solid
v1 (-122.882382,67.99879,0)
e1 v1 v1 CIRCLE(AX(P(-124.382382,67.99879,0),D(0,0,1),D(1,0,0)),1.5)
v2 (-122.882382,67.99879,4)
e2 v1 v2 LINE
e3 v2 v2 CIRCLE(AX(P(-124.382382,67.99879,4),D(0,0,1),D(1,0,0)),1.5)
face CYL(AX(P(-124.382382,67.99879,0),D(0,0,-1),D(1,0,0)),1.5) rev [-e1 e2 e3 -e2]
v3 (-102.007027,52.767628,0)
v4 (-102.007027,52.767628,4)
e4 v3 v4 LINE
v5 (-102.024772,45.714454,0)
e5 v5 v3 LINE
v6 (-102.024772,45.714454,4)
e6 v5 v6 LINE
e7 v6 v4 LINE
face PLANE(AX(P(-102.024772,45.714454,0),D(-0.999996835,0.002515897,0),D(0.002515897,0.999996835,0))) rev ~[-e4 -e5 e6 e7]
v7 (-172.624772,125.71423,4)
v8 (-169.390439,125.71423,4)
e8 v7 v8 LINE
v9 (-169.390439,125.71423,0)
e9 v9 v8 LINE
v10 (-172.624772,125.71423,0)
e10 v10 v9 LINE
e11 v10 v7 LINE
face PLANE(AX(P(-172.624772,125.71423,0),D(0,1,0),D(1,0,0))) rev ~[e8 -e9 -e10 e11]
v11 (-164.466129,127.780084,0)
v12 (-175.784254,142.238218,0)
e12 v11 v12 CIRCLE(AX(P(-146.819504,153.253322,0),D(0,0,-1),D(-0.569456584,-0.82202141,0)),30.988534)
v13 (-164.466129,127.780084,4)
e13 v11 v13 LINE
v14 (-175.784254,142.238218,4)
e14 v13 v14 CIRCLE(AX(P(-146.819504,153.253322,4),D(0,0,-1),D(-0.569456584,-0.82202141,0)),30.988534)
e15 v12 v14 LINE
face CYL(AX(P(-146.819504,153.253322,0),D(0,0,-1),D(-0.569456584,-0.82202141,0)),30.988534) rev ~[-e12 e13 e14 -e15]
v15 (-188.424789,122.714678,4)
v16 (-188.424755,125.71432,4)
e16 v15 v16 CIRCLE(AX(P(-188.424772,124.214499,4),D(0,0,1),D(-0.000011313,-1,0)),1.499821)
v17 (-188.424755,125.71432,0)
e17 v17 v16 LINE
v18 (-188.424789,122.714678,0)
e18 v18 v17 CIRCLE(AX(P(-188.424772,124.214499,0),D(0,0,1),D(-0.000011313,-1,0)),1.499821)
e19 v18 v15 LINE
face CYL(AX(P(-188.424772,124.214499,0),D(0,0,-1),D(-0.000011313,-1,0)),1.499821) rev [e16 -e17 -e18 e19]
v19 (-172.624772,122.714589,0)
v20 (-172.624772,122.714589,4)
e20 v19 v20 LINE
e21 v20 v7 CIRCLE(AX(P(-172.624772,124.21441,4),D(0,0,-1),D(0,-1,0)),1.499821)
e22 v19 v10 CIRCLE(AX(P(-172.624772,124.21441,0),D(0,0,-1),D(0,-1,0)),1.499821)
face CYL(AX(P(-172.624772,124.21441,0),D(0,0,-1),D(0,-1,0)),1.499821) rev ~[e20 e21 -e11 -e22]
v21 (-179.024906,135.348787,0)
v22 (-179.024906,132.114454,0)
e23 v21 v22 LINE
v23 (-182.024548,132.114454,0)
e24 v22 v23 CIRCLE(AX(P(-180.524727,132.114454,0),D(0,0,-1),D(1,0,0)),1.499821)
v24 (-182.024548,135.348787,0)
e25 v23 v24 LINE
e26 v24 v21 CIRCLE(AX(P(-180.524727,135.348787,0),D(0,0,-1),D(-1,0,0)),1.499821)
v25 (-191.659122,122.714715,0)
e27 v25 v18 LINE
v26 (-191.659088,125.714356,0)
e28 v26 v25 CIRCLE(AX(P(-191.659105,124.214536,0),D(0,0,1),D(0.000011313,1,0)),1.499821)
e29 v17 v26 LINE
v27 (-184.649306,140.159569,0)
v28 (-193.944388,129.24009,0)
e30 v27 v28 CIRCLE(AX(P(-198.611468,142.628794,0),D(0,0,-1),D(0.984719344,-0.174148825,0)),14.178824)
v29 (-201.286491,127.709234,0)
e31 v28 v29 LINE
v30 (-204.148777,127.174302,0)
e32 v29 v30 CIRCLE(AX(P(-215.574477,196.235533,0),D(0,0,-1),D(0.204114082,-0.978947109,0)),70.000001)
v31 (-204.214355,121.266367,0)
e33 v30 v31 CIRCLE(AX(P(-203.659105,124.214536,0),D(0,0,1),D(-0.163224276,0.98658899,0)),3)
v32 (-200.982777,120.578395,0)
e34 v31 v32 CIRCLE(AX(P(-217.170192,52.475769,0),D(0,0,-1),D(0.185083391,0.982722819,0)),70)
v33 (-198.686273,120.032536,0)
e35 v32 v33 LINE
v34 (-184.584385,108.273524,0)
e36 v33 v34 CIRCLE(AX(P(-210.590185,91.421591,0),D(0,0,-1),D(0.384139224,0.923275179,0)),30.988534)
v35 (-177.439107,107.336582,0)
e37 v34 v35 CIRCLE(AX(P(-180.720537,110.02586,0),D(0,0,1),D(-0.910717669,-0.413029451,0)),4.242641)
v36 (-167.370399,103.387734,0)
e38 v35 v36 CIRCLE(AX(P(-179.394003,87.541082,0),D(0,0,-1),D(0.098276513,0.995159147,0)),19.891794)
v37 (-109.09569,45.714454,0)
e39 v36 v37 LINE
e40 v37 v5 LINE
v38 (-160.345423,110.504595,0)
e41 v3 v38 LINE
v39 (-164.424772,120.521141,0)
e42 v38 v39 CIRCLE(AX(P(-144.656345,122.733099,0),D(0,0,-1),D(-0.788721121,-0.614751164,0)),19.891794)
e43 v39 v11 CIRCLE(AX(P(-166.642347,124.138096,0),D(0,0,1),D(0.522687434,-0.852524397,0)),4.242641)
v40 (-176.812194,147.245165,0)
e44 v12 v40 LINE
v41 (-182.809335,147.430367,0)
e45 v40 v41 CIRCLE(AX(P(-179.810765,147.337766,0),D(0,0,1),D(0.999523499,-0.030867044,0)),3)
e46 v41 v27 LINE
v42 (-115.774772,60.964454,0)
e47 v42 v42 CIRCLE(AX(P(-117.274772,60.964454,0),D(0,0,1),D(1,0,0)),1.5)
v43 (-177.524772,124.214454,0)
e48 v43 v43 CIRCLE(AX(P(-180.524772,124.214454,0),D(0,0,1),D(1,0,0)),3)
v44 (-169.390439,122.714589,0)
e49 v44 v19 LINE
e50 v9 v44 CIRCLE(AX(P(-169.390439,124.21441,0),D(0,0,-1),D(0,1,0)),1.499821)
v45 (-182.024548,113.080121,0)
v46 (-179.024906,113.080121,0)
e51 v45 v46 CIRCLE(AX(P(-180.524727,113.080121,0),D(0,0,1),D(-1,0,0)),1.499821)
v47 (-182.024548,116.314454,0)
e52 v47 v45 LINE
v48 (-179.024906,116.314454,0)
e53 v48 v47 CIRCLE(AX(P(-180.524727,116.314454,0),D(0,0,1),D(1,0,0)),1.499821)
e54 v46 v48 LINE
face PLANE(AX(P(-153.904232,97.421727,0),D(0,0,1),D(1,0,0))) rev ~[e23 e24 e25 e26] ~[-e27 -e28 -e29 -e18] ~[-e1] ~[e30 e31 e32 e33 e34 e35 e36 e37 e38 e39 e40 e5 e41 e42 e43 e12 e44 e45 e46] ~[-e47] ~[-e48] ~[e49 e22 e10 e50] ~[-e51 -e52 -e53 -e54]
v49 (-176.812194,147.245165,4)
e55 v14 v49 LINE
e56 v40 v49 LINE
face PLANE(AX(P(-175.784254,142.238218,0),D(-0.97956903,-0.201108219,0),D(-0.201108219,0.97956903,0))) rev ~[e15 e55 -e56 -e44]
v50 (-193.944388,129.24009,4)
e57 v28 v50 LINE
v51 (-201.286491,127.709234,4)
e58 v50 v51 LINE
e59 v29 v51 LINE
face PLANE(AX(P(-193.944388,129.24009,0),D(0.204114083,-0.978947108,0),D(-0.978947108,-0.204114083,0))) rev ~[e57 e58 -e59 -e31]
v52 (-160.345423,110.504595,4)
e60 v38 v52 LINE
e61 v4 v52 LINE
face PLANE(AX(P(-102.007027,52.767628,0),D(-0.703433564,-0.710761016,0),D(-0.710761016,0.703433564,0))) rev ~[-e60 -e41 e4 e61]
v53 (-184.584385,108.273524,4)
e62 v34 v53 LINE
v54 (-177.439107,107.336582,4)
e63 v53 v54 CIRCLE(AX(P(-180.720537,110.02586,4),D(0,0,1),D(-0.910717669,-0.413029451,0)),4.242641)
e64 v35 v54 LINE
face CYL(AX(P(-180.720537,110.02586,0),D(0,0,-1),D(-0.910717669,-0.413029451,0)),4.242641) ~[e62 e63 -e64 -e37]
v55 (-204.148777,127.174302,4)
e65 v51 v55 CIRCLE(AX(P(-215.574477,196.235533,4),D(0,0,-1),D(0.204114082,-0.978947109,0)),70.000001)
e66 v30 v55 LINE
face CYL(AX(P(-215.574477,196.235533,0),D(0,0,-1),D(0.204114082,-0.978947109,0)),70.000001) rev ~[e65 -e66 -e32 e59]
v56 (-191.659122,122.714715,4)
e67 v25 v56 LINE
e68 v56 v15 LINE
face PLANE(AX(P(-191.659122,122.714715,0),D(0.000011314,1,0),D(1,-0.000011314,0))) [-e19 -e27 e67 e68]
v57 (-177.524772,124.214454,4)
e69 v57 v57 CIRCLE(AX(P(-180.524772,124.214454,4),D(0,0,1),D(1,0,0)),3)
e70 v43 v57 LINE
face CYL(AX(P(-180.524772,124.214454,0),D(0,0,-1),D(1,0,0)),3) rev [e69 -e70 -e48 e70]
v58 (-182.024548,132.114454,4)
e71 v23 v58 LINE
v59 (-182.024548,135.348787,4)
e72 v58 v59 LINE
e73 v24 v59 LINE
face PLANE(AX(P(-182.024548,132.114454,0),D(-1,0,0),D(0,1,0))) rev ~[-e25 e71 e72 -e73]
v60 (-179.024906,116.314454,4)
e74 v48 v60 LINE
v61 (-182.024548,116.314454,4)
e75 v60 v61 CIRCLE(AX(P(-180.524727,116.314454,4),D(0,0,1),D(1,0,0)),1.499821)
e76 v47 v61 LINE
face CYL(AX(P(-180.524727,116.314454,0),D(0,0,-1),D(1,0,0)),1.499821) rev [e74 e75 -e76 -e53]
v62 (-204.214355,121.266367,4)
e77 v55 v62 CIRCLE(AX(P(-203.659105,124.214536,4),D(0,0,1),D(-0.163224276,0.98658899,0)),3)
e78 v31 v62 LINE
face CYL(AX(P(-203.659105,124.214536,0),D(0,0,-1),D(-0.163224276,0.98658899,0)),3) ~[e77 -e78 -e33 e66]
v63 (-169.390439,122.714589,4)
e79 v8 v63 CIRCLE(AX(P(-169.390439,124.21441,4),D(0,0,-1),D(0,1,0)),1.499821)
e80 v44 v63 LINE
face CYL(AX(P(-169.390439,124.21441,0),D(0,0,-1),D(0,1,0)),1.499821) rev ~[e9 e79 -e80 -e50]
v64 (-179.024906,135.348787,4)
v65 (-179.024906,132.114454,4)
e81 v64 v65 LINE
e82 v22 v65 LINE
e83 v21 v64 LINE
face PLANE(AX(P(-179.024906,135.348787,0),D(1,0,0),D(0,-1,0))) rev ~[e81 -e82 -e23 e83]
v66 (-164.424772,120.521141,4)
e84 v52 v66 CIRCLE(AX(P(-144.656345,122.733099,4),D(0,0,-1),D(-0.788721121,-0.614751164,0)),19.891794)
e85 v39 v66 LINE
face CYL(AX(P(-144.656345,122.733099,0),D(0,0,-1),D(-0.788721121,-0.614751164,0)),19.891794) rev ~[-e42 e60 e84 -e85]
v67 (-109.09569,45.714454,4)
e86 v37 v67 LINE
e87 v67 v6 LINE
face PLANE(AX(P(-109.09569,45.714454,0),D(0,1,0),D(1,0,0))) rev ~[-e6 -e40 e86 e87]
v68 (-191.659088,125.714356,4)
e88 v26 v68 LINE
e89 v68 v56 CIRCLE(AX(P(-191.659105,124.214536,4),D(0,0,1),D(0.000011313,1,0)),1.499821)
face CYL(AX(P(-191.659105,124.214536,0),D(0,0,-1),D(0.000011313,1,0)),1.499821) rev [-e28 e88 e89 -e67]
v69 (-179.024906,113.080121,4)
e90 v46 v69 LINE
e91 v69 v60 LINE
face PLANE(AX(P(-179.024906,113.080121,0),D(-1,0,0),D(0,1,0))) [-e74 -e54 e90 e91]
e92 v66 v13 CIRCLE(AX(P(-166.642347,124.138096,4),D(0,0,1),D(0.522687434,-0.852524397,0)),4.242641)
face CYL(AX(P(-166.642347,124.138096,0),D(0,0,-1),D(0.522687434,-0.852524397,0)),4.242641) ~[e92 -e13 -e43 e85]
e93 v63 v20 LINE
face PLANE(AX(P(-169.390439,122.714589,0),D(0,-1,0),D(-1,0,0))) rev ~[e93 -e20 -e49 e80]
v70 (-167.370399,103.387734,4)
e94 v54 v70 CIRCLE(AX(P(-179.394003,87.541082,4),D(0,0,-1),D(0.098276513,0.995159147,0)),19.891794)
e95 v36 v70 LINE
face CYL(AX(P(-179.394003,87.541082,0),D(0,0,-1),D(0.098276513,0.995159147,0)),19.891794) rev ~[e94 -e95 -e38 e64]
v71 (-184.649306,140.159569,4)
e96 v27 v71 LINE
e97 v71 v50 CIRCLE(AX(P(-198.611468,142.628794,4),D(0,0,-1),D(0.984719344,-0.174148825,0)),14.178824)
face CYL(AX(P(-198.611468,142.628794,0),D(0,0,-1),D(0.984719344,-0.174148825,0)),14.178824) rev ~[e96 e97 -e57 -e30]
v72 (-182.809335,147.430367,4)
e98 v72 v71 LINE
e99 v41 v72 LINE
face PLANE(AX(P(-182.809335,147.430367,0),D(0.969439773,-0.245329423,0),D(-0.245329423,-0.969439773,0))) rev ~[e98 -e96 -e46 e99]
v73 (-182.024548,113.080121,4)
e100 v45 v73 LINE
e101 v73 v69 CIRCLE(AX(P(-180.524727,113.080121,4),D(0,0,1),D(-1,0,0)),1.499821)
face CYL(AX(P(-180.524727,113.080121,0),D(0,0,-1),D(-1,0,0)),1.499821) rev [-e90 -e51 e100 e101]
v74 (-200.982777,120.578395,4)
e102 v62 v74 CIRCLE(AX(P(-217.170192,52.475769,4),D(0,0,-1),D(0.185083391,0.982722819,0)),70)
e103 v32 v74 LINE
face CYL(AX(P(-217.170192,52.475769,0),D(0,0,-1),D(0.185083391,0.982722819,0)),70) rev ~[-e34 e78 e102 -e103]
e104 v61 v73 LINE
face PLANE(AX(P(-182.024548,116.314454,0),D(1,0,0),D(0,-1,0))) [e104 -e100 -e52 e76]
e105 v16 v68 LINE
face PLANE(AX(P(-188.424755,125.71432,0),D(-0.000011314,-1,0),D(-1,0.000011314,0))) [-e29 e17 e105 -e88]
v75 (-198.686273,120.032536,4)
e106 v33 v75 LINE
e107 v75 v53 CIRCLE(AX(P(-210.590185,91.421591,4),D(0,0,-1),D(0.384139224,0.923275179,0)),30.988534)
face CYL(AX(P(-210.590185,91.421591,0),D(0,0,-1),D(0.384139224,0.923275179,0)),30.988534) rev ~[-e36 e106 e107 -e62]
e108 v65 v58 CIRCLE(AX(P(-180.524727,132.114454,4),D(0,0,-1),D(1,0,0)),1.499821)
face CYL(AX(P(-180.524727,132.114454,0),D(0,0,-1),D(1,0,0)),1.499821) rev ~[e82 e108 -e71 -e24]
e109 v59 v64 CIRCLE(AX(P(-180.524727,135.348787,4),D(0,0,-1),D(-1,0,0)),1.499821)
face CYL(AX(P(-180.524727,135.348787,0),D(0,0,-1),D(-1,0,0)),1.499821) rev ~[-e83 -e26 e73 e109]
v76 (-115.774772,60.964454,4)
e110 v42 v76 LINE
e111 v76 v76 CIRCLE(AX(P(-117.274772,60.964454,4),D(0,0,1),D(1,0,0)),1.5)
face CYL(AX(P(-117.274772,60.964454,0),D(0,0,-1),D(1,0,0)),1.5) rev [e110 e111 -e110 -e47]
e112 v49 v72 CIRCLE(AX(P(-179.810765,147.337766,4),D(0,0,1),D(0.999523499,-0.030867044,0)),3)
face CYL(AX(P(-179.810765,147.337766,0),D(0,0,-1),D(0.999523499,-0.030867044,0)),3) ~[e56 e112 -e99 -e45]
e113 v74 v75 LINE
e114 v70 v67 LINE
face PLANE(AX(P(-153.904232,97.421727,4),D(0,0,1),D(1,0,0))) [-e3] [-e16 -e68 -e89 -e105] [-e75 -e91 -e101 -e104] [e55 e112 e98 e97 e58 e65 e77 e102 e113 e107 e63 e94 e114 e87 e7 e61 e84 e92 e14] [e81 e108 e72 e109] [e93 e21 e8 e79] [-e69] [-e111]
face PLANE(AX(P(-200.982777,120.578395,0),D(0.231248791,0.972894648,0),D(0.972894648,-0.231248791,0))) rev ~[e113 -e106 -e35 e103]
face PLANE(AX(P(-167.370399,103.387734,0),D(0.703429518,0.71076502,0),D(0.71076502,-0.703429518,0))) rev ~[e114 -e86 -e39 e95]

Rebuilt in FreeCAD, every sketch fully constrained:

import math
import FreeCAD as App
import Part
import Sketcher

doc = App.newDocument("Part")
params = doc.addObject("Spreadsheet::Sheet", "Params")
for row, (alias, value) in enumerate([
    ("sketch1_diameter", "3 mm"),
    ("sketch1_diameter2", "6 mm"),
    ("sketch1_radius", "70.000001 mm"),
    ("sketch1_length", "7.5 mm"),
    ("pad1_length", "4 mm"),
], start=1):
    params.set(f"A{row}", alias)
    params.set(f"B{row}", "=" + value)
    params.setAlias(f"B{row}", alias)

body = doc.addObject("PartDesign::Body", "Body")

sketch1 = body.newObject("Sketcher::SketchObject", "Sketch")
sketch1.AttachmentSupport = (doc.getObject("XY_Plane"), [""])
sketch1.MapMode = "FlatFace"
sketch1.addGeometry([
    Part.LineSegment(App.Vector(-201, 120.6, 0), App.Vector(-198.7, 120, 0)),
    Part.ArcOfCircle(Part.Circle(App.Vector(-210.6, 91.4, 0), App.Vector(0, 0, 1), 31), math.radians(33), math.radians(67)),
    Part.ArcOfCircle(Part.Circle(App.Vector(-180.7, 110, 0), App.Vector(0, 0, 1), 4.2), math.radians(-156), math.radians(-39)),
    Part.ArcOfCircle(Part.Circle(App.Vector(-179.4, 87.5, 0), App.Vector(0, 0, 1), 19.9), math.radians(53), math.radians(84)),
    Part.LineSegment(App.Vector(-167.4, 103.4, 0), App.Vector(-109.1, 45.7, 0)),
    Part.LineSegment(App.Vector(-109.1, 45.7, 0), App.Vector(-102, 45.7, 0)),
    Part.LineSegment(App.Vector(-102, 45.7, 0), App.Vector(-102, 52.8, 0)),
    Part.LineSegment(App.Vector(-102, 52.8, 0), App.Vector(-160.3, 110.5, 0)),
    Part.ArcOfCircle(Part.Circle(App.Vector(-144.7, 122.7, 0), App.Vector(0, 0, 1), 19.9), math.radians(-174), math.radians(-142)),
    Part.ArcOfCircle(Part.Circle(App.Vector(-166.6, 124.1, 0), App.Vector(0, 0, 1), 4.2), math.radians(-58), math.radians(59)),
    Part.ArcOfCircle(Part.Circle(App.Vector(-146.8, 153.3, 0), App.Vector(0, 0, 1), 31), math.radians(-159), math.radians(-125)),
    Part.LineSegment(App.Vector(-175.8, 142.2, 0), App.Vector(-176.8, 147.2, 0)),
    Part.ArcOfCircle(Part.Circle(App.Vector(-179.8, 147.3, 0), App.Vector(0, 0, 1), 3), math.radians(-2), math.radians(178)),
    Part.LineSegment(App.Vector(-182.8, 147.4, 0), App.Vector(-184.6, 140.2, 0)),
    Part.ArcOfCircle(Part.Circle(App.Vector(-198.6, 142.6, 0), App.Vector(0, 0, 1), 14.2), math.radians(-71), math.radians(-10)),
    Part.LineSegment(App.Vector(-193.9, 129.2, 0), App.Vector(-201.3, 127.7, 0)),
    Part.ArcOfCircle(Part.Circle(App.Vector(-215.6, 196.2, 0), App.Vector(0, 0, 1), 70), math.radians(-80.61), math.radians(-78.22)),
    Part.ArcOfCircle(Part.Circle(App.Vector(-203.7, 124.2, 0), App.Vector(0, 0, 1), 3), math.radians(99), math.radians(259)),
    Part.ArcOfCircle(Part.Circle(App.Vector(-217.2, 52.5, 0), App.Vector(0, 0, 1), 70), math.radians(76.63), math.radians(79.33)),
    Part.Circle(App.Vector(-117.3, 61, 0), App.Vector(0, 0, 1), 1.5),
    Part.Circle(App.Vector(-124.4, 68, 0), App.Vector(0, 0, 1), 1.5),
    Part.LineSegment(App.Vector(-182, 113.1, 0), App.Vector(-182, 116.3, 0)),
    Part.ArcOfCircle(Part.Circle(App.Vector(-180.5, 116.3, 0), App.Vector(0, 0, 1), 1.5), math.radians(0), math.radians(180)),
    Part.LineSegment(App.Vector(-179, 116.3, 0), App.Vector(-179, 113.1, 0)),
    Part.ArcOfCircle(Part.Circle(App.Vector(-180.5, 113.1, 0), App.Vector(0, 0, 1), 1.5), math.radians(180), math.radians(360)),
    Part.LineSegment(App.Vector(-191.7, 125.7, 0), App.Vector(-188.4, 125.7, 0)),
    Part.ArcOfCircle(Part.Circle(App.Vector(-188.4, 124.2, 0), App.Vector(0, 0, 1), 1.5), math.radians(-90), math.radians(90)),
    Part.LineSegment(App.Vector(-188.4, 122.7, 0), App.Vector(-191.7, 122.7, 0)),
    Part.ArcOfCircle(Part.Circle(App.Vector(-191.7, 124.2, 0), App.Vector(0, 0, 1), 1.5), math.radians(90), math.radians(270)),
    Part.Circle(App.Vector(-180.5, 124.2, 0), App.Vector(0, 0, 1), 3),
    Part.ArcOfCircle(Part.Circle(App.Vector(-180.5, 132.1, 0), App.Vector(0, 0, 1), 1.5), math.radians(180), math.radians(360)),
    Part.LineSegment(App.Vector(-182, 132.1, 0), App.Vector(-182, 135.3, 0)),
    Part.ArcOfCircle(Part.Circle(App.Vector(-180.5, 135.3, 0), App.Vector(0, 0, 1), 1.5), math.radians(0), math.radians(180)),
    Part.LineSegment(App.Vector(-179, 135.3, 0), App.Vector(-179, 132.1, 0)),
    Part.ArcOfCircle(Part.Circle(App.Vector(-172.6, 124.2, 0), App.Vector(0, 0, 1), 1.5), math.radians(90), math.radians(270)),
    Part.LineSegment(App.Vector(-172.6, 125.7, 0), App.Vector(-169.4, 125.7, 0)),
    Part.ArcOfCircle(Part.Circle(App.Vector(-169.4, 124.2, 0), App.Vector(0, 0, 1), 1.5), math.radians(-90), math.radians(90)),
    Part.LineSegment(App.Vector(-169.4, 122.7, 0), App.Vector(-172.6, 122.7, 0)),
], False)
sketch1.addConstraint([
    Sketcher.Constraint("Coincident", 0, 2, 1, 2),
    Sketcher.Constraint("Coincident", 1, 1, 2, 1),
    Sketcher.Constraint("Coincident", 2, 2, 3, 2),
    Sketcher.Constraint("Coincident", 3, 1, 4, 1),
    Sketcher.Constraint("Coincident", 4, 2, 5, 1),
    Sketcher.Constraint("Coincident", 5, 2, 6, 1),
    Sketcher.Constraint("Coincident", 6, 2, 7, 1),
    Sketcher.Constraint("Coincident", 7, 2, 8, 2),
    Sketcher.Constraint("Coincident", 8, 1, 9, 1),
    Sketcher.Constraint("Coincident", 9, 2, 10, 2),
    Sketcher.Constraint("Coincident", 10, 1, 11, 1),
    Sketcher.Constraint("Coincident", 11, 2, 12, 1),
    Sketcher.Constraint("Coincident", 12, 2, 13, 1),
    Sketcher.Constraint("Coincident", 13, 2, 14, 2),
    Sketcher.Constraint("Coincident", 14, 1, 15, 1),
    Sketcher.Constraint("Tangent", 15, 2, 16, 2),
    Sketcher.Constraint("Tangent", 16, 1, 17, 1),
    Sketcher.Constraint("Tangent", 17, 2, 18, 2),
    Sketcher.Constraint("Tangent", 18, 1, 0, 1),
    Sketcher.Constraint("Tangent", 21, 2, 22, 2),
    Sketcher.Constraint("Tangent", 22, 1, 23, 1),
    Sketcher.Constraint("Tangent", 23, 2, 24, 2),
    Sketcher.Constraint("Tangent", 24, 1, 21, 1),
    Sketcher.Constraint("Tangent", 25, 2, 26, 2),
    Sketcher.Constraint("Tangent", 26, 1, 27, 1),
    Sketcher.Constraint("Tangent", 27, 2, 28, 2),
    Sketcher.Constraint("Tangent", 28, 1, 25, 1),
    Sketcher.Constraint("Tangent", 30, 1, 31, 1),
    Sketcher.Constraint("Tangent", 31, 2, 32, 2),
    Sketcher.Constraint("Tangent", 32, 1, 33, 1),
    Sketcher.Constraint("Tangent", 33, 2, 30, 2),
    Sketcher.Constraint("Tangent", 34, 1, 35, 1),
    Sketcher.Constraint("Tangent", 35, 2, 36, 2),
    Sketcher.Constraint("Tangent", 36, 1, 37, 1),
    Sketcher.Constraint("Tangent", 37, 2, 34, 2),
    Sketcher.Constraint("Horizontal", 5),
    Sketcher.Constraint("Vertical", 21),
    Sketcher.Constraint("Vertical", 23),
    Sketcher.Constraint("Vertical", 31),
    Sketcher.Constraint("Vertical", 33),
    Sketcher.Constraint("Horizontal", 35),
    Sketcher.Constraint("Horizontal", 37),
    Sketcher.Constraint("Equal", 3, 8),
    Sketcher.Constraint("Equal", 2, 9),
    Sketcher.Constraint("Equal", 1, 10),
    Sketcher.Constraint("Equal", 12, 17),
    Sketcher.Constraint("Equal", 16, 18),
    Sketcher.Constraint("Equal", 19, 20),
    Sketcher.Constraint("Equal", 24, 26),
    Sketcher.Constraint("Equal", 26, 28),
    Sketcher.Constraint("Equal", 17, 29),
    Sketcher.Constraint("Equal", 28, 30),
    Sketcher.Constraint("Equal", 32, 34),
    Sketcher.Constraint("Horizontal", 17, 3, 28, 3),
    Sketcher.Constraint("Vertical", 24, 3, 30, 3),
    Sketcher.Constraint("Equal", 37, 21),
    Sketcher.Constraint("Equal", 23, 31),
    Sketcher.Constraint("Equal", 13, 15),
    Sketcher.Constraint("Diameter", 19, 3.0),
    Sketcher.Constraint("Diameter", 29, 6.0),
    Sketcher.Constraint("Radius", 16, 70.000001),
    Sketcher.Constraint("DistanceX", 17, 3, 28, 3, 12.0),
    Sketcher.Constraint("Distance", 13, 7.5),
    Sketcher.Constraint("DistanceX", 26, 3, 29, 3, 7.9),
    Sketcher.Constraint("DistanceY", 22, 3, 29, 3, 7.9),
    Sketcher.Constraint("DistanceY", 29, 3, 30, 3, 7.9),
    Sketcher.Constraint("DistanceX", 29, 3, 34, 3, 7.9),
    Sketcher.Constraint("DistanceX", 34, 3, 8, 1, 8.2),
    Sketcher.Constraint("Radius", 2, 4.242641),
    Sketcher.Constraint("Radius", 22, 1.499821),
    Sketcher.Constraint("DistanceY", 4, 2, 19, 3, 15.25),
    Sketcher.Constraint("DistanceX", 19, 3, 5, 2, 15.25),
    Sketcher.Constraint("Radius", 1, 30.988534),
    Sketcher.Constraint("Radius", 3, 19.891794),
    Sketcher.Constraint("Radius", 14, 14.178824),
    Sketcher.Constraint("DistanceX", 9, 3, 8, 3, 21.986002),
    Sketcher.Constraint("DistanceY", 0, 2, 17, 3, 4.182),
    Sketcher.Constraint("DistanceX", 16, 1, 18, 1, 3.166001),
    Sketcher.Constraint("DistanceX", 5, 1, 5, 2, 7.070919),
    Sketcher.Constraint("DistanceY", -1, 1, 8, 3, 122.733099),
    Sketcher.Constraint("DistanceY", -1, 1, 26, 3, 124.214499),
    Sketcher.Constraint("DistanceX", 3, 1, -1, 1, 167.370399),
    Sketcher.Constraint("DistanceX", 3, 3, 10, 3, 32.574498),
    Sketcher.Constraint("DistanceY", 9, 3, 14, 3, 18.490699),
    Sketcher.Constraint("DistanceX", 0, 2, 26, 3, 10.261502),
    Sketcher.Constraint("DistanceY", 7, 2, 9, 3, 13.6335),
    Sketcher.Constraint("DistanceY", 11, 2, 12, 3, 0.092601),
    Sketcher.Constraint("DistanceY", 12, 3, 12, 2, 0.092601),
    Sketcher.Constraint("DistanceY", 13, 2, 12, 2, 7.270798),
    Sketcher.Constraint("DistanceY", 17, 3, 15, 2, 3.494699),
    Sketcher.Constraint("DistanceX", 14, 1, 26, 1, 5.519599),
    Sketcher.Constraint("DistanceX", 14, 1, 28, 1, 2.2853),
    Sketcher.Constraint("DistanceX", 13, 2, 32, 1, 5.624399),
    Sketcher.Constraint("Distance", 7, 82.078779),
    Sketcher.Constraint("DistanceX", 35, 1, 35, 2, 3.234333),
    Sketcher.Constraint("DistanceY", -1, 1, 1, 3, 91.421591),
    Sketcher.Constraint("DistanceY", -1, 1, 2, 3, 110.02586),
    Sketcher.Constraint("DistanceY", -1, 1, 3, 3, 87.541082),
    Sketcher.Constraint("DistanceY", -1, 1, 18, 3, 52.475769),
    Sketcher.Constraint("DistanceX", 19, 3, -1, 1, 117.274772),
    Sketcher.Constraint("DistanceX", 20, 3, -1, 1, 124.382382),
    Sketcher.Constraint("DistanceY", -1, 1, 20, 3, 67.99879),
    Sketcher.Constraint("DistanceY", -1, 1, 24, 3, 113.080121),
    Sketcher.Constraint("DistanceX", 26, 3, -1, 1, 188.424772),
    Sketcher.Constraint("DistanceY", -1, 1, 34, 3, 124.21441),
    Sketcher.Constraint("DistanceY", -1, 1, 8, 1, 120.521141),
    Sketcher.Constraint("DistanceX", 9, 2, -1, 1, 164.466129),
    Sketcher.Constraint("DistanceY", -1, 1, 10, 1, 142.238218),
    Sketcher.Constraint("DistanceY", -1, 1, 13, 2, 140.159569),
    Sketcher.Constraint("DistanceX", 1, 3, 3, 3, 31.196182),
    Sketcher.Constraint("DistanceX", 2, 3, 9, 3, 14.078191),
    Sketcher.Constraint("DistanceY", 19, 3, 9, 3, 63.173642),
    Sketcher.Constraint("DistanceX", 8, 3, 6, 2, 42.649318),
])
sketch1.setExpression("Constraints[58]", "Params.sketch1_diameter")
sketch1.setExpression("Constraints[59]", "Params.sketch1_diameter2")
sketch1.setExpression("Constraints[60]", "Params.sketch1_radius")
sketch1.setExpression("Constraints[62]", "Params.sketch1_length")
pad1 = body.newObject("PartDesign::Pad", "Pad")
pad1.Profile = sketch1
pad1.setExpression("Length", "Params.pad1_length")

doc.recompute()
